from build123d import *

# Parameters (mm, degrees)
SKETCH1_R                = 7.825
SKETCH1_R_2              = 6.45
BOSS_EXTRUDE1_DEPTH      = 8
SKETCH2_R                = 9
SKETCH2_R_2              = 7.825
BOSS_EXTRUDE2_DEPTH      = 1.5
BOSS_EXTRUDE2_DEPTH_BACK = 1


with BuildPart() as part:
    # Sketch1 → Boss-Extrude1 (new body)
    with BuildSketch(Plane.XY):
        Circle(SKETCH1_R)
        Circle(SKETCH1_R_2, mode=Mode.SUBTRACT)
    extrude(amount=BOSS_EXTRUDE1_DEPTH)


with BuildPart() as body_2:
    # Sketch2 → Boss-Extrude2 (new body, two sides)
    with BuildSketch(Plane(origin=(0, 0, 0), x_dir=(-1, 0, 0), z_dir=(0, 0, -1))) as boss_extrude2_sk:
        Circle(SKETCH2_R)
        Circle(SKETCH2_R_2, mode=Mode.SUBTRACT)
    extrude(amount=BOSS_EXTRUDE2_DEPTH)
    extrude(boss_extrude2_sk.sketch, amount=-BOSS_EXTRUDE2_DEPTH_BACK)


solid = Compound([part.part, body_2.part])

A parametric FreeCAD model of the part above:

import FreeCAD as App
import Part
import Sketcher

V = App.Vector

doc = App.newDocument("Part")
body = doc.addObject("PartDesign::Body", "Body")

sketch1 = body.newObject("Sketcher::SketchObject", "Sketch")
sketch1.AttachmentSupport = (doc.getObject("XY_Plane"), [""])
sketch1.MapMode = "FlatFace"
sketch1.addGeometry([
    Part.Circle(V(0, 0, 0), V(0, 0, 1), 8),
    Part.Circle(V(0, 0, 0), V(0, 0, 1), 6),
], False)
sketch1.addConstraint([
    Sketcher.Constraint("Coincident", 0, 3, -1, 1),
    Sketcher.Constraint("Coincident", 1, 3, -1, 1),
    Sketcher.Constraint("Diameter", 1, 12.9),
    Sketcher.Constraint("Diameter", 0, 15.65),
])
pad1 = body.newObject("PartDesign::Pad", "Pad")
pad1.Profile = sketch1
pad1.Length = 8
body2 = doc.addObject("PartDesign::Body", "Body001")

sketch2 = body2.newObject("Sketcher::SketchObject", "Sketch001")
sketch2.AttachmentSupport = (doc.getObject("XY_Plane001"), [""])
sketch2.MapMode = "FlatFace"
sketch2.addGeometry([
    Part.Circle(V(0, 0, 0), V(0, 0, 1), 9),
    Part.Circle(V(0, 0, 0), V(0, 0, 1), 8),
], False)
sketch2.addConstraint([
    Sketcher.Constraint("Coincident", 0, 3, -1, 1),
    Sketcher.Constraint("Coincident", 1, 3, -1, 1),
    Sketcher.Constraint("Diameter", 0, 18.0),
    Sketcher.Constraint("Diameter", 1, 15.65),
])
pad2 = body2.newObject("PartDesign::Pad", "Pad001")
pad2.Profile = sketch2
pad2.Type = "TwoLengths"
pad2.Length = 1.5
pad2.Length2 = 1
pad2.Reversed = True

doc.recompute()
